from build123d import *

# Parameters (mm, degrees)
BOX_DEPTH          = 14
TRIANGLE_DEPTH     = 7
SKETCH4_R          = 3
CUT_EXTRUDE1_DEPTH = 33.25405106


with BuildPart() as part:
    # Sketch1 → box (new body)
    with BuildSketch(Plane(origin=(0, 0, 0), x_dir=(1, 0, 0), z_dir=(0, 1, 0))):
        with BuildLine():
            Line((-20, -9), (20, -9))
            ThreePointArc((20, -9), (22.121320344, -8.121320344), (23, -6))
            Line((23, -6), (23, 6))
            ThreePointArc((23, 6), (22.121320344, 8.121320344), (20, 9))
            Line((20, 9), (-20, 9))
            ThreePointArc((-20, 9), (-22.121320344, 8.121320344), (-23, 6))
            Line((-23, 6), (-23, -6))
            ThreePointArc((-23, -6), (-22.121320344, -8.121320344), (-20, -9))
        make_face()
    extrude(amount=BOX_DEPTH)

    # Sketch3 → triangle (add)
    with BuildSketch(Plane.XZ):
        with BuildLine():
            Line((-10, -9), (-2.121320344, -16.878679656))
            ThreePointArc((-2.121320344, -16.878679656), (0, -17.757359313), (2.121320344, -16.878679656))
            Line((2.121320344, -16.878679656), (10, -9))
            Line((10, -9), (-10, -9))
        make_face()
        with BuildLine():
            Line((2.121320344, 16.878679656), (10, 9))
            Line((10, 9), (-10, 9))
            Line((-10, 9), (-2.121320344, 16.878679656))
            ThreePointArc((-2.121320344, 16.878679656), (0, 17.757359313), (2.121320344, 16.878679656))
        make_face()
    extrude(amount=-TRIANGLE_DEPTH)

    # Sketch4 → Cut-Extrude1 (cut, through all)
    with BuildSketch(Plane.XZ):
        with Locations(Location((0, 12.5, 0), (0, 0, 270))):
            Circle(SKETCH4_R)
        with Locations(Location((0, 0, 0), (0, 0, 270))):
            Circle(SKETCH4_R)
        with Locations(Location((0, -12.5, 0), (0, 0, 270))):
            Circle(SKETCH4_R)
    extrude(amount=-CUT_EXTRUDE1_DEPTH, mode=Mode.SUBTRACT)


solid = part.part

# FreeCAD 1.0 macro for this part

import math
import FreeCAD as App
import Part
import Sketcher
from FreeCAD import Vector
Q = App.Units.Quantity

doc = App.newDocument("Part")
params = doc.addObject("Spreadsheet::Sheet", "Params")
for row, (alias, value) in enumerate([
    ("sketch1_radius", "3 mm"),
    ("sketch1_width", "40 mm"),
    ("sketch1_height", "12 mm"),
    ("pad1_length", "14 mm"),
    ("sketch2_radius", "3 mm"),
    ("sketch2_width", "20 mm"),
    ("pad2_length", "7 mm"),
    ("sketch3_diameter", "6 mm"),
], start=1):
    params.set(f"A{row}", alias)
    params.set(f"B{row}", "=" + value)
    params.setAlias(f"B{row}", alias)

body = doc.addObject("PartDesign::Body", "Body")

# Sketch on XZ plane
sketch1 = doc.addObject("Sketcher::SketchObject", "Sketch")
body.addObject(sketch1)
sketch1.AttachmentSupport = (doc.XZ_Plane, [""])
sketch1.MapMode = "FlatFace"
sketch1.addGeometry([
    Part.LineSegment(Vector(-20, 9, 0), Vector(20, 9, 0)),  # 0
    Part.ArcOfCircle(Part.Circle(Vector(20, 6, 0), Vector(0, 0, 1), 3), math.radians(0), math.radians(90)),  # 1
    Part.LineSegment(Vector(23, 6, 0), Vector(23, -6, 0)),  # 2
    Part.ArcOfCircle(Part.Circle(Vector(20, -6, 0), Vector(0, 0, 1), 3), math.radians(-90), math.radians(0)),  # 3
    Part.LineSegment(Vector(20, -9, 0), Vector(-20, -9, 0)),  # 4
    Part.ArcOfCircle(Part.Circle(Vector(-20, -6, 0), Vector(0, 0, 1), 3), math.radians(180), math.radians(270)),  # 5
    Part.LineSegment(Vector(-23, -6, 0), Vector(-23, 6, 0)),  # 6
    Part.ArcOfCircle(Part.Circle(Vector(-20, 6, 0), Vector(0, 0, 1), 3), math.radians(90), math.radians(180)),  # 7
], False)
sketch1.addConstraint([
    Sketcher.Constraint("Tangent", 0, 2, 1, 2),
    Sketcher.Constraint("Tangent", 1, 1, 2, 1),
    Sketcher.Constraint("Tangent", 2, 2, 3, 2),
    Sketcher.Constraint("Tangent", 3, 1, 4, 1),
    Sketcher.Constraint("Tangent", 4, 2, 5, 2),
    Sketcher.Constraint("Tangent", 5, 1, 6, 1),
    Sketcher.Constraint("Tangent", 6, 2, 7, 2),
    Sketcher.Constraint("Tangent", 7, 1, 0, 1),
    Sketcher.Constraint("Horizontal", 0),
    Sketcher.Constraint("Vertical", 2),
    Sketcher.Constraint("Horizontal", 4),
    Sketcher.Constraint("Vertical", 6),
    Sketcher.Constraint("Equal", 1, 3),
    Sketcher.Constraint("Equal", 3, 5),
    Sketcher.Constraint("Equal", 5, 7),
    Sketcher.Constraint("Symmetric", 1, 3, 5, 3, -1, 1),
    Sketcher.Constraint("Radius", 1, Q("3 mm")),
    Sketcher.Constraint("DistanceX", 0, 1, 0, 2, Q("40 mm")),
    Sketcher.Constraint("DistanceY", 2, 2, 2, 1, Q("12 mm")),
])
sketch1.setExpression("Constraints[16]", "Params.sketch1_radius")
sketch1.setExpression("Constraints[17]", "Params.sketch1_width")
sketch1.setExpression("Constraints[18]", "Params.sketch1_height")
pad1 = doc.addObject("PartDesign::Pad", "Pad")
body.addObject(pad1)
pad1.Profile = sketch1
pad1.setExpression("Length", "Params.pad1_length")
pad1.Reversed = True

# Sketch on XZ plane
sketch2 = doc.addObject("Sketcher::SketchObject", "Sketch001")
body.addObject(sketch2)
sketch2.AttachmentSupport = (doc.XZ_Plane, [""])
sketch2.MapMode = "FlatFace"
sketch2.addGeometry([
    Part.LineSegment(Vector(-10, -9, 0), Vector(-2.12132, -16.87868, 0)),  # 0
    Part.ArcOfCircle(Part.Circle(Vector(0, -14.757359, 0), Vector(0, 0, 1), 3), math.radians(-135), math.radians(-45)),  # 1
    Part.LineSegment(Vector(2.12132, -16.87868, 0), Vector(10, -9, 0)),  # 2
    Part.LineSegment(Vector(10, -9, 0), Vector(-10, -9, 0)),  # 3
    Part.LineSegment(Vector(10, 9, 0), Vector(2.12132, 16.87868, 0)),  # 4
    Part.ArcOfCircle(Part.Circle(Vector(0, 14.757359, 0), Vector(0, 0, 1), 3), math.radians(45), math.radians(135)),  # 5
    Part.LineSegment(Vector(-2.12132, 16.87868, 0), Vector(-10, 9, 0)),  # 6
    Part.LineSegment(Vector(-10, 9, 0), Vector(10, 9, 0)),  # 7
], False)
sketch2.addConstraint([
    Sketcher.Constraint("Tangent", 0, 2, 1, 1),
    Sketcher.Constraint("Tangent", 1, 2, 2, 1),
    Sketcher.Constraint("Coincident", 2, 2, 3, 1),
    Sketcher.Constraint("Coincident", 3, 2, 0, 1),
    Sketcher.Constraint("Tangent", 4, 2, 5, 1),
    Sketcher.Constraint("Tangent", 5, 2, 6, 1),
    Sketcher.Constraint("Coincident", 6, 2, 7, 1),
    Sketcher.Constraint("Coincident", 7, 2, 4, 1),
    Sketcher.Constraint("Horizontal", 3),
    Sketcher.Constraint("Horizontal", 7),
    Sketcher.Constraint("Equal", 1, 5),
    Sketcher.Constraint("Symmetric", 1, 3, 5, 3, -1, 1),
    Sketcher.Constraint("Symmetric", 2, 2, 6, 2, -1, 1),
    Sketcher.Constraint("Symmetric", 0, 2, 1, 2, -2),
    Sketcher.Constraint("Perpendicular", 0, 2),
    Sketcher.Constraint("Perpendicular", 2, 4),
    Sketcher.Constraint("Radius", 1, Q("3 mm")),
    Sketcher.Constraint("DistanceX", 3, 2, 3, 1, Q("20 mm")),
    Sketcher.Constraint("DistanceY", 2, 2, -1, 1, Q("9 mm")),
])
sketch2.setExpression("Constraints[16]", "Params.sketch2_radius")
sketch2.setExpression("Constraints[17]", "Params.sketch2_width")
pad2 = doc.addObject("PartDesign::Pad", "Pad001")
body.addObject(pad2)
pad2.Profile = sketch2
pad2.setExpression("Length", "Params.pad2_length")
pad2.Reversed = True

# Sketch on XZ plane
sketch3 = doc.addObject("Sketcher::SketchObject", "Sketch002")
body.addObject(sketch3)
sketch3.AttachmentSupport = (doc.XZ_Plane, [""])
sketch3.MapMode = "FlatFace"
sketch3.addGeometry([
    Part.Circle(Vector(0, 12.5, 0), Vector(0, 0, 1), 3),
    Part.Circle(Vector(0, 0, 0), Vector(0, 0, 1), 3),
    Part.Circle(Vector(0, -12.5, 0), Vector(0, 0, 1), 3),
], False)
sketch3.addConstraint([
    Sketcher.Constraint("Coincident", 1, 3, -1, 1),
    Sketcher.Constraint("Equal", 0, 1),
    Sketcher.Constraint("Equal", 1, 2),
    Sketcher.Constraint("Symmetric", 0, 3, 2, 3, -1, 1),
    Sketcher.Constraint("PointOnObject", 0, 3, -2),
    Sketcher.Constraint("Diameter", 0, Q("6 mm")),
    Sketcher.Constraint("DistanceY", 2, 3, 0, 3, Q("25 mm")),
])
sketch3.setExpression("Constraints[5]", "Params.sketch3_diameter")
pocket1 = doc.addObject("PartDesign::Pocket", "Pocket")
body.addObject(pocket1)
pocket1.Profile = sketch3
pocket1.Type = "ThroughAll"

doc.recompute()
